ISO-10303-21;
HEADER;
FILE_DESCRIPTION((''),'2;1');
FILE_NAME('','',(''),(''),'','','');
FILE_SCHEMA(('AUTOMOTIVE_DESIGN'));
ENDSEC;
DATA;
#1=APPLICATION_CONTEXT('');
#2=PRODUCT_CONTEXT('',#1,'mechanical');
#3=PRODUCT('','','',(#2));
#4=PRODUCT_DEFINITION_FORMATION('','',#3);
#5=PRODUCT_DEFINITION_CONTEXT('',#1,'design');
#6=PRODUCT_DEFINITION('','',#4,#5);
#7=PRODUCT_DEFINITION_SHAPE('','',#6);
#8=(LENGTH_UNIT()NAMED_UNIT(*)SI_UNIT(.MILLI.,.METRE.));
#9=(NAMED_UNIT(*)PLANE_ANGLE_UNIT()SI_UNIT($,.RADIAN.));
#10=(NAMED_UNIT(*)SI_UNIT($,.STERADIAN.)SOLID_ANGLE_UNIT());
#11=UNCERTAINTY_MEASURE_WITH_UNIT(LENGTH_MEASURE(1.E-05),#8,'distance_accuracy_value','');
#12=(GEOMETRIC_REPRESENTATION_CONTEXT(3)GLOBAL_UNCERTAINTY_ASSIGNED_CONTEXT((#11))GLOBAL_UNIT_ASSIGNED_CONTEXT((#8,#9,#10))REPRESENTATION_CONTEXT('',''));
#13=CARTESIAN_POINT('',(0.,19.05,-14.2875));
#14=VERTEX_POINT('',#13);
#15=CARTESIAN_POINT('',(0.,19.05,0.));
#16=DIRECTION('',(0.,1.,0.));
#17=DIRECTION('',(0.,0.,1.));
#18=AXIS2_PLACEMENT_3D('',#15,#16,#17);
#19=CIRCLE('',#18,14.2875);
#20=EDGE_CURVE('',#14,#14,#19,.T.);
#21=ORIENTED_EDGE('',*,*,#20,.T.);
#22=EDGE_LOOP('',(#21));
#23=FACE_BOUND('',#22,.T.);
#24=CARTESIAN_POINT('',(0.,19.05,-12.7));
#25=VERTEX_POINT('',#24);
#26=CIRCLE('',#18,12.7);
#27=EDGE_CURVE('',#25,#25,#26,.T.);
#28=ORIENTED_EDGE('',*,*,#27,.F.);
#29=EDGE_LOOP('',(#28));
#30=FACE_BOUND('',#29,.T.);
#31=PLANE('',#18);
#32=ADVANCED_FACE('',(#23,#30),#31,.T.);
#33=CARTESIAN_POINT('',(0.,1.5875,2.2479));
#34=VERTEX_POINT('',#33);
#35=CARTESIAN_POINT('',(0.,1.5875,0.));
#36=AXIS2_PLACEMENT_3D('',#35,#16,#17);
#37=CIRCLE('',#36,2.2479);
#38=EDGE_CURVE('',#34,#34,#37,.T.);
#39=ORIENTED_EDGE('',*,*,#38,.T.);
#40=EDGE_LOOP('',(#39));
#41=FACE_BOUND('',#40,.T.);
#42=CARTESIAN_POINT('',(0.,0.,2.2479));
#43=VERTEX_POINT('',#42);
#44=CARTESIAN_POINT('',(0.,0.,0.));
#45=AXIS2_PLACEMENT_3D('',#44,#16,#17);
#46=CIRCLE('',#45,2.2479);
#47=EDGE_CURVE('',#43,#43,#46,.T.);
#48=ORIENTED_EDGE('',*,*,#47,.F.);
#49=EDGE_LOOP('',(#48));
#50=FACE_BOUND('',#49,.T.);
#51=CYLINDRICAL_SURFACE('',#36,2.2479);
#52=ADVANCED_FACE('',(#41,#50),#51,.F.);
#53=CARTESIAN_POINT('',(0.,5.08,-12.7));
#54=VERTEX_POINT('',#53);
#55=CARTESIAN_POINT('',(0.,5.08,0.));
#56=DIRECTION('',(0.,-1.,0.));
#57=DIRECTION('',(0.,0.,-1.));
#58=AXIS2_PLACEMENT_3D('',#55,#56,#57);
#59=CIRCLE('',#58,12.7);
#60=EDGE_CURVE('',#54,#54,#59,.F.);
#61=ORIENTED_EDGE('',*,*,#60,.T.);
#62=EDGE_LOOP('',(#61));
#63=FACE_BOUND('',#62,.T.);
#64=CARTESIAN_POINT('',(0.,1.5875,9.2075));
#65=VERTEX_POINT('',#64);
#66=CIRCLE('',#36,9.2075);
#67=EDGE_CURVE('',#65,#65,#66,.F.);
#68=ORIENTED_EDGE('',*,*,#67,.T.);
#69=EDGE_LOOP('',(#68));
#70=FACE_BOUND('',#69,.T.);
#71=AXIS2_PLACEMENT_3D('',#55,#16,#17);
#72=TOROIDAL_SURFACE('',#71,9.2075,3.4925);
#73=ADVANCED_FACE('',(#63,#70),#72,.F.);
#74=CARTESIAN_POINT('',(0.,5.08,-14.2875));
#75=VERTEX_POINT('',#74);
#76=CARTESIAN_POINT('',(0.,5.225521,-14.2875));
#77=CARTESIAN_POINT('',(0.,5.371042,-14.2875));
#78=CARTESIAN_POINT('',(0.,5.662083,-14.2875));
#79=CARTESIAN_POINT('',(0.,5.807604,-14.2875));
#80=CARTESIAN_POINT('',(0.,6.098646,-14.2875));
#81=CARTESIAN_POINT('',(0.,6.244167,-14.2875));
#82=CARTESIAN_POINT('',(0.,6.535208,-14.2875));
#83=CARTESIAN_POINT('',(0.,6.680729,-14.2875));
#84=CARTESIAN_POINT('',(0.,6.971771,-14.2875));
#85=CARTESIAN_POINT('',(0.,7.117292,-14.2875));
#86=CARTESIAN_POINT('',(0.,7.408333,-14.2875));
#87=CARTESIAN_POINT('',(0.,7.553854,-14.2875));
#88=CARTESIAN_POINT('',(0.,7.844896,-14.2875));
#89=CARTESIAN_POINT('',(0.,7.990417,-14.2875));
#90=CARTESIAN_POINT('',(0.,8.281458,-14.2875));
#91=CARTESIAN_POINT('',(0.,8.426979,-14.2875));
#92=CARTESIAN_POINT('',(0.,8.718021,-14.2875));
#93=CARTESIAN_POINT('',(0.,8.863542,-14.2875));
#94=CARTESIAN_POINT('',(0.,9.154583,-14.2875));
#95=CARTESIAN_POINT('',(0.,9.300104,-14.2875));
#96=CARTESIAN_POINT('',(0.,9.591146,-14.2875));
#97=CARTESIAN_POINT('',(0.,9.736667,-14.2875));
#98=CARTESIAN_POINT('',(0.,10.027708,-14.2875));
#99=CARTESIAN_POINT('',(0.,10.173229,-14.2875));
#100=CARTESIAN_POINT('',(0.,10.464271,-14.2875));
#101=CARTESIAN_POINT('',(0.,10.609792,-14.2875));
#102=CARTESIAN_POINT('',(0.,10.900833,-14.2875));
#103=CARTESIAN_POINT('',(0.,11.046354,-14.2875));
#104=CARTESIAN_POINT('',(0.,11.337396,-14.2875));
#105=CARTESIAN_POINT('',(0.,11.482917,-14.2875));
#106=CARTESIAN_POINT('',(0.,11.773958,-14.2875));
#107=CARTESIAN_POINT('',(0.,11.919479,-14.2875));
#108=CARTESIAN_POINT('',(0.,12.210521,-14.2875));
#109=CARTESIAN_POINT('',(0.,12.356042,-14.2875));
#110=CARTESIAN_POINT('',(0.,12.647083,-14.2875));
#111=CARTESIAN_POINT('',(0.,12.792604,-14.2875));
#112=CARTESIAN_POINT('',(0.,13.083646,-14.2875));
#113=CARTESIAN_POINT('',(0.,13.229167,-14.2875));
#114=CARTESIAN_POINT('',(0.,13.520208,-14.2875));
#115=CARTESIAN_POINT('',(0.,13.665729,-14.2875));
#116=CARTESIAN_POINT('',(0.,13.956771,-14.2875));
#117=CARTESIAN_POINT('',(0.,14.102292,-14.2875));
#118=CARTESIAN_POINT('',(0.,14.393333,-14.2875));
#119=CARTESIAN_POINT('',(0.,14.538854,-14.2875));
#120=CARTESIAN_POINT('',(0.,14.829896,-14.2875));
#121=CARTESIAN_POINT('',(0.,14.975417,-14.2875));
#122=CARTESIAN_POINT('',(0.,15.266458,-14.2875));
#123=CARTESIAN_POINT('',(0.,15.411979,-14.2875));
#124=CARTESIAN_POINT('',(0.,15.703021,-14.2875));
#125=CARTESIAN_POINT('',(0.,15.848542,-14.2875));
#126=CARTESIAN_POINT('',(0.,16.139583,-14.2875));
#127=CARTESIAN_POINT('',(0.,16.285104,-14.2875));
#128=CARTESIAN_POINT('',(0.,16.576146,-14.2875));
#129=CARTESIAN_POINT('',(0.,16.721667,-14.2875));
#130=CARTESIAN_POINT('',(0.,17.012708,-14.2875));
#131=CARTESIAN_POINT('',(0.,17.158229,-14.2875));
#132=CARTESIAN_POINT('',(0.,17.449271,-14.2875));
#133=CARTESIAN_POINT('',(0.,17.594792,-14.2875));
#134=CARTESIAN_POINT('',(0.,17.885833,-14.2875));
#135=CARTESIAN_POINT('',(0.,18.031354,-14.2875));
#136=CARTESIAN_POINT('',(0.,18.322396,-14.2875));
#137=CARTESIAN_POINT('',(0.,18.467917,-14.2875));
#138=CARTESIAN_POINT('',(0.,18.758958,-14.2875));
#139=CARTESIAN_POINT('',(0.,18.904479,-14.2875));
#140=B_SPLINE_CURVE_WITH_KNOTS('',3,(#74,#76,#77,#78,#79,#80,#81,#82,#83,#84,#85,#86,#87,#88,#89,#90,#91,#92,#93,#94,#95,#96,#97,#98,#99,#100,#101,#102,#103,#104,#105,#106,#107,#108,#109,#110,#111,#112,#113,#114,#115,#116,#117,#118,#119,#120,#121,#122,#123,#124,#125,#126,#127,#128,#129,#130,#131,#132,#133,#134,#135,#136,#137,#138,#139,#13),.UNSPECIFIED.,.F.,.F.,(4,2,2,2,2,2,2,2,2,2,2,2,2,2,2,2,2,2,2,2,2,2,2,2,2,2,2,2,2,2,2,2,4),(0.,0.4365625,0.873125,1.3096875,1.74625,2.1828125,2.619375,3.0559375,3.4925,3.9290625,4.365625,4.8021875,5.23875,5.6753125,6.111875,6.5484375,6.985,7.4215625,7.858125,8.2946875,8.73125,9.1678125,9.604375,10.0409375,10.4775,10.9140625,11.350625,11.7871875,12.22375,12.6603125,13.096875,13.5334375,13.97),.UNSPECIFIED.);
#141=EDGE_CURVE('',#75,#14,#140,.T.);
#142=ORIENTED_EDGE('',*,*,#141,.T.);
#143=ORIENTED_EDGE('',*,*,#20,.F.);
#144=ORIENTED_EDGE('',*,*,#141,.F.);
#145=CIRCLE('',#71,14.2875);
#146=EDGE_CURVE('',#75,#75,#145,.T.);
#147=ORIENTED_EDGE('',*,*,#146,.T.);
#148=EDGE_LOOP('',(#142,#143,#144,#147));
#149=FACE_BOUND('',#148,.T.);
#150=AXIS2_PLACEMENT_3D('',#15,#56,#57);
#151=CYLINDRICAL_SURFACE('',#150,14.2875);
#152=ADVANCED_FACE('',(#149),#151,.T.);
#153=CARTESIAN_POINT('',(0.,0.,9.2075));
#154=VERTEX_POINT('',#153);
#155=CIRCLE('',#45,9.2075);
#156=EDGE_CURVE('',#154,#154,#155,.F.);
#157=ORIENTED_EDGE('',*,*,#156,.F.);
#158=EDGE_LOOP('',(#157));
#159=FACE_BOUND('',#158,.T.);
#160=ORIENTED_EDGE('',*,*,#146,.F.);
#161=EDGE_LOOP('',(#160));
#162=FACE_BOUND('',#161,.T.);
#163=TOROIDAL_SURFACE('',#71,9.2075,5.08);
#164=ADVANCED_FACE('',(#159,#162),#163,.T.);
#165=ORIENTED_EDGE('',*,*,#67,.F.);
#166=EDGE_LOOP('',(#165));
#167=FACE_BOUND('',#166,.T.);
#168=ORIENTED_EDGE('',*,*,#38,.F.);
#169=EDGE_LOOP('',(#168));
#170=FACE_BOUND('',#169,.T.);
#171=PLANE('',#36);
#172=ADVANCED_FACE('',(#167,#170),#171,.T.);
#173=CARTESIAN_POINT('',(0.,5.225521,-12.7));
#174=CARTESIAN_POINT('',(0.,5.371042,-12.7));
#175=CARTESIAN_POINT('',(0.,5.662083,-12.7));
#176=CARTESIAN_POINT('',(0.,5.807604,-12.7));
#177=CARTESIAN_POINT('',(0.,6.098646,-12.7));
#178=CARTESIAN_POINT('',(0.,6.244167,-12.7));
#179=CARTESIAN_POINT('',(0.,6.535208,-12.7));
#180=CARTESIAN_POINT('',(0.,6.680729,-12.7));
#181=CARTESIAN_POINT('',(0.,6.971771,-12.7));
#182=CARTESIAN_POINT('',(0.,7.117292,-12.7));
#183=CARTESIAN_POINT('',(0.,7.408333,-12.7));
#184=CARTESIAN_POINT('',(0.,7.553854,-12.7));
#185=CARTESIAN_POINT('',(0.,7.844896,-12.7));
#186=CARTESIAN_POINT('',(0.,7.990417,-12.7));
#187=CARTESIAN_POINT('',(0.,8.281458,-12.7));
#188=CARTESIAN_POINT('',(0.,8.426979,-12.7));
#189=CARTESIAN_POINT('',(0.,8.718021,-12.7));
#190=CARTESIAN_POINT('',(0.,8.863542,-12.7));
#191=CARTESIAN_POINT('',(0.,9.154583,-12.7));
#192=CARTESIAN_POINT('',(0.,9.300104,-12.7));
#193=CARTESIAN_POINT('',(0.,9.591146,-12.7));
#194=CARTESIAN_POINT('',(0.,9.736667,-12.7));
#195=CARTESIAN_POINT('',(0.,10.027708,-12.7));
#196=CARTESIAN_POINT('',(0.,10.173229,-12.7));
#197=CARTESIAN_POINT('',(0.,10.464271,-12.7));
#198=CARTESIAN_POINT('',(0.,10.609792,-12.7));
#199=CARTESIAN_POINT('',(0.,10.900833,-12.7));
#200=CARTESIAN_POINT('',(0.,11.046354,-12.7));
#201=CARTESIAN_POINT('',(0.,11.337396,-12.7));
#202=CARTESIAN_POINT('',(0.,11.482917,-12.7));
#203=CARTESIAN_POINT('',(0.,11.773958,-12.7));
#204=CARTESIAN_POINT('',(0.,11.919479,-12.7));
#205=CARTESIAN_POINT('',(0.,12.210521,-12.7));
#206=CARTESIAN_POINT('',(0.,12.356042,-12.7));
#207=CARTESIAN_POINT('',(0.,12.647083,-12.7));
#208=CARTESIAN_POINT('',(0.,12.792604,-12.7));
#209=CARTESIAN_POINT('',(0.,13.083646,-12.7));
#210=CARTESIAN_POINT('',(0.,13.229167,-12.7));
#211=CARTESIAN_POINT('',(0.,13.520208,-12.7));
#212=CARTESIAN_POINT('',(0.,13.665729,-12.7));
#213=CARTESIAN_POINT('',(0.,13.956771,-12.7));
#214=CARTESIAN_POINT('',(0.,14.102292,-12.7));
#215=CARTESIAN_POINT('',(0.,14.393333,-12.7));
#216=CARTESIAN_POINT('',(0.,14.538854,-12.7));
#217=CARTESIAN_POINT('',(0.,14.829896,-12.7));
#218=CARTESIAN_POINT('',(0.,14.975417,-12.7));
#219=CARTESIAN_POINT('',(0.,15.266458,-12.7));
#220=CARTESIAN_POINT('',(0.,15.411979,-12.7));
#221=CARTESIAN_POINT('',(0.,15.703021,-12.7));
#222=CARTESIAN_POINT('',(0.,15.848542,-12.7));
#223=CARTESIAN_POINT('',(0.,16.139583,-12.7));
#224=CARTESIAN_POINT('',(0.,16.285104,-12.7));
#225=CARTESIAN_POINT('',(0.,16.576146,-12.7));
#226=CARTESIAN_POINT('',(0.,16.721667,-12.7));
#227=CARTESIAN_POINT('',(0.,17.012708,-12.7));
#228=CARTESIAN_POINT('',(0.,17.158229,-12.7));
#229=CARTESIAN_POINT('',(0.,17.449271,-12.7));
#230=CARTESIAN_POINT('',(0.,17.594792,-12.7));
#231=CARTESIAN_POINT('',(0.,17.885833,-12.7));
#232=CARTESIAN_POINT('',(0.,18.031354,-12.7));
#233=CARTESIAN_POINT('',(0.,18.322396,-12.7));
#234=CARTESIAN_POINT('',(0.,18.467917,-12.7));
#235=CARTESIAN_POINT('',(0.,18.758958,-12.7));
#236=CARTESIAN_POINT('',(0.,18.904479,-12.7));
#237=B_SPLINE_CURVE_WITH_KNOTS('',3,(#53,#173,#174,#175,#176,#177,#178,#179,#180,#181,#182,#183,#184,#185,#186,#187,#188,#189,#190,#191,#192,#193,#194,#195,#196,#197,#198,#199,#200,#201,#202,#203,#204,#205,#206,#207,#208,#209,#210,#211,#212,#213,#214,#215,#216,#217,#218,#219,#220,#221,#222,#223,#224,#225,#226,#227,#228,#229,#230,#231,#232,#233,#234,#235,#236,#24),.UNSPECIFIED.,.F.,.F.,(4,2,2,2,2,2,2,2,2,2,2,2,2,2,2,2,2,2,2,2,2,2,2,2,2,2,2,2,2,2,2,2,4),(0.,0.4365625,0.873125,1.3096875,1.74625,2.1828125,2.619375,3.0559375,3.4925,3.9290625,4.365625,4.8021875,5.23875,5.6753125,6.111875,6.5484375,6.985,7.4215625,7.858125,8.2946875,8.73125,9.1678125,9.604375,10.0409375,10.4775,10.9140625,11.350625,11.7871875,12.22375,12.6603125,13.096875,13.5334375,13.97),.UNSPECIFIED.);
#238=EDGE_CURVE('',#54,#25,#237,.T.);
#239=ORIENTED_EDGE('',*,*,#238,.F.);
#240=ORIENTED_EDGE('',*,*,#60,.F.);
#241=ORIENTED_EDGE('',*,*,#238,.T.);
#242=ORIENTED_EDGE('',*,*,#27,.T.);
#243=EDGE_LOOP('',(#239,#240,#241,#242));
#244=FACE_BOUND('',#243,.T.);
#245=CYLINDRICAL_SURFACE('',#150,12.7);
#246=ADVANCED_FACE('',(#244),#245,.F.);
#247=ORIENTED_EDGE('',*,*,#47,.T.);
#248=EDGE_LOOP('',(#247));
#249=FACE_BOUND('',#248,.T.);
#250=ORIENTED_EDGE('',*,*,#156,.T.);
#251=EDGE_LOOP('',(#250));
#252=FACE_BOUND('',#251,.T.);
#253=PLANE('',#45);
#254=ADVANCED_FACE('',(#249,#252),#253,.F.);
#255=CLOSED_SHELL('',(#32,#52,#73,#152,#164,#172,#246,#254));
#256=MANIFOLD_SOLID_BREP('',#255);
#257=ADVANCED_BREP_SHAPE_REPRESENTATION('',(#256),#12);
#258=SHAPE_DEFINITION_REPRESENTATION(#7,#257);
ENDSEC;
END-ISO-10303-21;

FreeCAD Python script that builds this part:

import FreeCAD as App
import Part
import Sketcher
from FreeCAD import Vector
Q = App.Units.Quantity


def edges_at(feature, points):
    """Names of the edges that pass closest to the given points."""
    edges = feature.Shape.Edges
    near = lambda p: min(range(len(edges)), key=lambda i: edges[i].distToShape(Part.Vertex(*p))[0])
    return sorted({f"Edge{near(p) + 1}" for p in points})


def faces_at(feature, points):
    """Names of the faces that lie closest to the given points."""
    faces = feature.Shape.Faces
    near = lambda p: min(range(len(faces)), key=lambda i: faces[i].distToShape(Part.Vertex(*p))[0])
    return sorted({f"Face{near(p) + 1}" for p in points})

doc = App.newDocument("Part")
body = doc.addObject("PartDesign::Body", "Body")

# Sketch on XZ plane
sketch1 = body.newObject("Sketcher::SketchObject", "Sketch")
sketch1.AttachmentSupport = (doc.getObject("XZ_Plane"), [""])
sketch1.MapMode = "FlatFace"
sketch1.addGeometry(Part.Circle(Vector(0, 0, 0), Vector(0, 0, 1), 14), False)
sketch1.addConstraint(Sketcher.Constraint("Coincident", 0, 3, -1, 1))
sketch1.addConstraint(Sketcher.Constraint("Diameter", 0, Q("1.125 in")))
pad1 = body.newObject("PartDesign::Pad", "Pad")
pad1.Profile = sketch1
pad1.Length = Q("0.75 in")
pad1.Reversed = True
doc.recompute()

fillet = body.newObject("PartDesign::Fillet", "Fillet")
fillet.Base = (pad1, edges_at(pad1, [(0, 0, 14.287)]))
fillet.Radius = Q("0.2 in")
doc.recompute()

thickness = body.newObject("PartDesign::Thickness", "Thickness")
thickness.Base = (fillet, faces_at(fillet, [(0, 19.05, 0)]))
thickness.Value = Q("0.0625 in")
thickness.Reversed = True
thickness.Join = "Intersection"

# Sketch on XZ plane
sketch2 = body.newObject("Sketcher::SketchObject", "Sketch001")
sketch2.AttachmentSupport = (doc.getObject("XZ_Plane"), [""])
sketch2.MapMode = "FlatFace"
sketch2.AttachmentOffset = App.Placement(Vector(0, 0, -0.0625 * 25.4), App.Rotation())
sketch2.addGeometry(Part.Circle(Vector(0, 0, 0), Vector(0, 0, 1), 2.2), False)
sketch2.addConstraint(Sketcher.Constraint("Coincident", 0, 3, -1, 1))
sketch2.addConstraint(Sketcher.Constraint("Diameter", 0, Q("0.177 in")))
doc.recompute()
hole = body.newObject("PartDesign::Hole", "Hole")
hole.Profile = sketch2
hole.ThreadType = "None"
hole.Diameter = Q("0.177 in")
hole.DepthType = "Dimension"
hole.Depth = Q("0.25 in")
hole.DrillPoint = "Angled"
hole.DrillPointAngle = 118
hole.Reversed = True

doc.recompute()
